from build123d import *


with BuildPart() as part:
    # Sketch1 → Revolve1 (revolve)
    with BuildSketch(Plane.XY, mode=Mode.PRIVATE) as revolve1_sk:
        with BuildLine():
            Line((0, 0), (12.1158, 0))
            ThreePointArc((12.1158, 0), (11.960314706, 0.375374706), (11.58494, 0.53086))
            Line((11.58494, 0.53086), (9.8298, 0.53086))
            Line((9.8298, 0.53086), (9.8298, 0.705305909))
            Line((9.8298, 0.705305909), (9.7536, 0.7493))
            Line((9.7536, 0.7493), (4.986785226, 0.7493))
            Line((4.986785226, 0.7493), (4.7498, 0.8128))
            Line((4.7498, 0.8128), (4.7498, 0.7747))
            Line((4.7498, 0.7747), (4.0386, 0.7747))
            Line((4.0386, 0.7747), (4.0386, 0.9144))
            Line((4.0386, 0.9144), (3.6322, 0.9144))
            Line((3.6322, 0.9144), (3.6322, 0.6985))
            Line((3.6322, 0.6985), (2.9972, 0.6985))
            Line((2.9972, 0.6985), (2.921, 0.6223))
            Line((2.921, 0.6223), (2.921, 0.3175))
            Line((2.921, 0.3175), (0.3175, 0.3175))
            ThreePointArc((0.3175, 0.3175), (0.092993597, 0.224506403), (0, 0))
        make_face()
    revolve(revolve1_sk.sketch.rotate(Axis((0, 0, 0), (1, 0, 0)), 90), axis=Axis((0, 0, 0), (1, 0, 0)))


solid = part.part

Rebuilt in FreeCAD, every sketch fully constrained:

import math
import FreeCAD as App
import Part
import Sketcher

V = App.Vector
Q = App.Units.Quantity

doc = App.newDocument("Part")
params = doc.addObject("Spreadsheet::Sheet", "Params")
for row, (alias, value) in enumerate([
    ("sketch1_width", "0.477 in"),
    ("sketch1_width2", "0.028 in"),
    ("sketch1_width3", "0.016 in"),
    ("sketch1_width4", "0.025 in"),
    ("sketch1_height", "0.012 in"),
    ("revolution_angle", "360 deg"),
], start=1):
    params.set(f"A{row}", alias)
    params.set(f"B{row}", "=" + value)
    params.setAlias(f"B{row}", alias)

body = doc.addObject("PartDesign::Body", "Body")

# Sketch on XY plane
sketch1 = body.newObject("Sketcher::SketchObject", "Sketch")
sketch1.AttachmentSupport = (doc.getObject("XY_Plane"), [""])
sketch1.MapMode = "FlatFace"
sketch1.addGeometry(Part.LineSegment(V(0, 0, 0), V(12.116, 0, 0)), False)
sketch1.addGeometry(Part.ArcOfCircle(Part.Circle(V(11.585, 0, 0), V(0, 0, 1), 0.531), math.radians(0), math.radians(90)), False)
sketch1.addGeometry(Part.LineSegment(V(11.585, 0.531, 0), V(9.83, 0.531, 0)), False)
sketch1.addGeometry(Part.LineSegment(V(9.83, 0.531, 0), V(9.83, 0.705, 0)), False)
sketch1.addGeometry(Part.LineSegment(V(9.83, 0.705, 0), V(9.754, 0.749, 0)), False)
sketch1.addGeometry(Part.LineSegment(V(9.754, 0.749, 0), V(4.987, 0.749, 0)), False)
sketch1.addGeometry(Part.LineSegment(V(4.987, 0.749, 0), V(4.75, 0.813, 0)), False)
sketch1.addGeometry(Part.LineSegment(V(4.75, 0.813, 0), V(4.75, 0.775, 0)), False)
sketch1.addGeometry(Part.LineSegment(V(4.75, 0.775, 0), V(4.039, 0.775, 0)), False)
sketch1.addGeometry(Part.LineSegment(V(4.039, 0.775, 0), V(4.039, 0.914, 0)), False)
sketch1.addGeometry(Part.LineSegment(V(4.039, 0.914, 0), V(3.632, 0.914, 0)), False)
sketch1.addGeometry(Part.LineSegment(V(3.632, 0.914, 0), V(3.632, 0.699, 0)), False)
sketch1.addGeometry(Part.LineSegment(V(3.632, 0.699, 0), V(2.997, 0.699, 0)), False)
sketch1.addGeometry(Part.LineSegment(V(2.997, 0.699, 0), V(2.921, 0.622, 0)), False)
sketch1.addGeometry(Part.LineSegment(V(2.921, 0.622, 0), V(2.921, 0.318, 0)), False)
sketch1.addGeometry(Part.LineSegment(V(2.921, 0.318, 0), V(0.318, 0.318, 0)), False)
sketch1.addGeometry(Part.ArcOfCircle(Part.Circle(V(0.318, 0, 0), V(0, 0, 1), 0.318), math.radians(90), math.radians(180)), False)
sketch1.addConstraint(Sketcher.Constraint("Coincident", 0, 2, 1, 1))
sketch1.addConstraint(Sketcher.Constraint("Tangent", 1, 2, 2, 1))
sketch1.addConstraint(Sketcher.Constraint("Coincident", 2, 2, 3, 1))
sketch1.addConstraint(Sketcher.Constraint("Coincident", 3, 2, 4, 1))
sketch1.addConstraint(Sketcher.Constraint("Coincident", 4, 2, 5, 1))
sketch1.addConstraint(Sketcher.Constraint("Coincident", 5, 2, 6, 1))
sketch1.addConstraint(Sketcher.Constraint("Coincident", 6, 2, 7, 1))
sketch1.addConstraint(Sketcher.Constraint("Coincident", 7, 2, 8, 1))
sketch1.addConstraint(Sketcher.Constraint("Coincident", 8, 2, 9, 1))
sketch1.addConstraint(Sketcher.Constraint("Coincident", 9, 2, 10, 1))
sketch1.addConstraint(Sketcher.Constraint("Coincident", 10, 2, 11, 1))
sketch1.addConstraint(Sketcher.Constraint("Coincident", 11, 2, 12, 1))
sketch1.addConstraint(Sketcher.Constraint("Coincident", 12, 2, 13, 1))
sketch1.addConstraint(Sketcher.Constraint("Coincident", 13, 2, 14, 1))
sketch1.addConstraint(Sketcher.Constraint("Coincident", 14, 2, 15, 1))
sketch1.addConstraint(Sketcher.Constraint("Tangent", 15, 2, 16, 1))
sketch1.addConstraint(Sketcher.Constraint("Coincident", 16, 2, 0, 1))
sketch1.addConstraint(Sketcher.Constraint("Horizontal", 0))
sketch1.addConstraint(Sketcher.Constraint("Horizontal", 2))
sketch1.addConstraint(Sketcher.Constraint("Vertical", 3))
sketch1.addConstraint(Sketcher.Constraint("Horizontal", 5))
sketch1.addConstraint(Sketcher.Constraint("Vertical", 7))
sketch1.addConstraint(Sketcher.Constraint("Horizontal", 8))
sketch1.addConstraint(Sketcher.Constraint("Vertical", 9))
sketch1.addConstraint(Sketcher.Constraint("Horizontal", 10))
sketch1.addConstraint(Sketcher.Constraint("Vertical", 11))
sketch1.addConstraint(Sketcher.Constraint("Horizontal", 12))
sketch1.addConstraint(Sketcher.Constraint("Vertical", 14))
sketch1.addConstraint(Sketcher.Constraint("Horizontal", 15))
sketch1.addConstraint(Sketcher.Constraint("Coincident", 16, 2, -1, 1))
sketch1.addConstraint(Sketcher.Constraint("PointOnObject", 1, 3, -1))
sketch1.addConstraint(Sketcher.Constraint("PointOnObject", 16, 3, -1))
sketch1.addConstraint(Sketcher.Constraint("Angle", 4, Q("150 deg")))
sketch1.addConstraint(Sketcher.Constraint("Angle", 6, Q("165 deg")))
sketch1.addConstraint(Sketcher.Constraint("Angle", 13, Q("-135 deg")))
sketch1.addConstraint(Sketcher.Constraint("Radius", 1, Q("0.0209 in")))
sketch1.addConstraint(Sketcher.Constraint("Radius", 16, Q("0.0125 in")))
sketch1.addConstraint(Sketcher.Constraint("DistanceX", 6, 2, 3, 2, Q("0.2 in")))
sketch1.addConstraint(Sketcher.Constraint("DistanceX", 0, 1, 0, 2, Q("0.477 in")))
sketch1.addConstraint(Sketcher.Constraint("DistanceX", 8, 2, 8, 1, Q("0.028 in")))
sketch1.addConstraint(Sketcher.Constraint("DistanceX", 10, 2, 10, 1, Q("0.016 in")))
sketch1.addConstraint(Sketcher.Constraint("DistanceX", 12, 2, 12, 1, Q("0.025 in")))
sketch1.addConstraint(Sketcher.Constraint("DistanceY", 14, 2, 14, 1, Q("0.012 in")))
sketch1.addConstraint(Sketcher.Constraint("DistanceX", 2, 2, 0, 2, Q("0.09 in")))
sketch1.addConstraint(Sketcher.Constraint("DistanceX", 15, 2, 15, 1, Q("0.1025 in")))
sketch1.addConstraint(Sketcher.Constraint("DistanceY", 7, 2, 7, 1, Q("0.0015 in")))
sketch1.addConstraint(Sketcher.Constraint("DistanceY", 9, 1, 9, 2, Q("0.0055 in")))
sketch1.addConstraint(Sketcher.Constraint("DistanceY", 11, 2, 11, 1, Q("0.0085 in")))
sketch1.addConstraint(Sketcher.Constraint("DistanceX", -1, 1, 4, 2, Q("0.384 in")))
sketch1.addConstraint(Sketcher.Constraint("DistanceY", 5, 2, 7, 2, Q("0.001 in")))
sketch1.setExpression("Constraints[38]", "Params.sketch1_width")
sketch1.setExpression("Constraints[39]", "Params.sketch1_width2")
sketch1.setExpression("Constraints[40]", "Params.sketch1_width3")
sketch1.setExpression("Constraints[41]", "Params.sketch1_width4")
sketch1.setExpression("Constraints[42]", "Params.sketch1_height")
revolution = body.newObject("PartDesign::Revolution", "Revolution")
revolution.Profile = sketch1
revolution.ReferenceAxis = (sketch1, ["H_Axis"])
revolution.setExpression("Angle", "Params.revolution_angle")

doc.recompute()
